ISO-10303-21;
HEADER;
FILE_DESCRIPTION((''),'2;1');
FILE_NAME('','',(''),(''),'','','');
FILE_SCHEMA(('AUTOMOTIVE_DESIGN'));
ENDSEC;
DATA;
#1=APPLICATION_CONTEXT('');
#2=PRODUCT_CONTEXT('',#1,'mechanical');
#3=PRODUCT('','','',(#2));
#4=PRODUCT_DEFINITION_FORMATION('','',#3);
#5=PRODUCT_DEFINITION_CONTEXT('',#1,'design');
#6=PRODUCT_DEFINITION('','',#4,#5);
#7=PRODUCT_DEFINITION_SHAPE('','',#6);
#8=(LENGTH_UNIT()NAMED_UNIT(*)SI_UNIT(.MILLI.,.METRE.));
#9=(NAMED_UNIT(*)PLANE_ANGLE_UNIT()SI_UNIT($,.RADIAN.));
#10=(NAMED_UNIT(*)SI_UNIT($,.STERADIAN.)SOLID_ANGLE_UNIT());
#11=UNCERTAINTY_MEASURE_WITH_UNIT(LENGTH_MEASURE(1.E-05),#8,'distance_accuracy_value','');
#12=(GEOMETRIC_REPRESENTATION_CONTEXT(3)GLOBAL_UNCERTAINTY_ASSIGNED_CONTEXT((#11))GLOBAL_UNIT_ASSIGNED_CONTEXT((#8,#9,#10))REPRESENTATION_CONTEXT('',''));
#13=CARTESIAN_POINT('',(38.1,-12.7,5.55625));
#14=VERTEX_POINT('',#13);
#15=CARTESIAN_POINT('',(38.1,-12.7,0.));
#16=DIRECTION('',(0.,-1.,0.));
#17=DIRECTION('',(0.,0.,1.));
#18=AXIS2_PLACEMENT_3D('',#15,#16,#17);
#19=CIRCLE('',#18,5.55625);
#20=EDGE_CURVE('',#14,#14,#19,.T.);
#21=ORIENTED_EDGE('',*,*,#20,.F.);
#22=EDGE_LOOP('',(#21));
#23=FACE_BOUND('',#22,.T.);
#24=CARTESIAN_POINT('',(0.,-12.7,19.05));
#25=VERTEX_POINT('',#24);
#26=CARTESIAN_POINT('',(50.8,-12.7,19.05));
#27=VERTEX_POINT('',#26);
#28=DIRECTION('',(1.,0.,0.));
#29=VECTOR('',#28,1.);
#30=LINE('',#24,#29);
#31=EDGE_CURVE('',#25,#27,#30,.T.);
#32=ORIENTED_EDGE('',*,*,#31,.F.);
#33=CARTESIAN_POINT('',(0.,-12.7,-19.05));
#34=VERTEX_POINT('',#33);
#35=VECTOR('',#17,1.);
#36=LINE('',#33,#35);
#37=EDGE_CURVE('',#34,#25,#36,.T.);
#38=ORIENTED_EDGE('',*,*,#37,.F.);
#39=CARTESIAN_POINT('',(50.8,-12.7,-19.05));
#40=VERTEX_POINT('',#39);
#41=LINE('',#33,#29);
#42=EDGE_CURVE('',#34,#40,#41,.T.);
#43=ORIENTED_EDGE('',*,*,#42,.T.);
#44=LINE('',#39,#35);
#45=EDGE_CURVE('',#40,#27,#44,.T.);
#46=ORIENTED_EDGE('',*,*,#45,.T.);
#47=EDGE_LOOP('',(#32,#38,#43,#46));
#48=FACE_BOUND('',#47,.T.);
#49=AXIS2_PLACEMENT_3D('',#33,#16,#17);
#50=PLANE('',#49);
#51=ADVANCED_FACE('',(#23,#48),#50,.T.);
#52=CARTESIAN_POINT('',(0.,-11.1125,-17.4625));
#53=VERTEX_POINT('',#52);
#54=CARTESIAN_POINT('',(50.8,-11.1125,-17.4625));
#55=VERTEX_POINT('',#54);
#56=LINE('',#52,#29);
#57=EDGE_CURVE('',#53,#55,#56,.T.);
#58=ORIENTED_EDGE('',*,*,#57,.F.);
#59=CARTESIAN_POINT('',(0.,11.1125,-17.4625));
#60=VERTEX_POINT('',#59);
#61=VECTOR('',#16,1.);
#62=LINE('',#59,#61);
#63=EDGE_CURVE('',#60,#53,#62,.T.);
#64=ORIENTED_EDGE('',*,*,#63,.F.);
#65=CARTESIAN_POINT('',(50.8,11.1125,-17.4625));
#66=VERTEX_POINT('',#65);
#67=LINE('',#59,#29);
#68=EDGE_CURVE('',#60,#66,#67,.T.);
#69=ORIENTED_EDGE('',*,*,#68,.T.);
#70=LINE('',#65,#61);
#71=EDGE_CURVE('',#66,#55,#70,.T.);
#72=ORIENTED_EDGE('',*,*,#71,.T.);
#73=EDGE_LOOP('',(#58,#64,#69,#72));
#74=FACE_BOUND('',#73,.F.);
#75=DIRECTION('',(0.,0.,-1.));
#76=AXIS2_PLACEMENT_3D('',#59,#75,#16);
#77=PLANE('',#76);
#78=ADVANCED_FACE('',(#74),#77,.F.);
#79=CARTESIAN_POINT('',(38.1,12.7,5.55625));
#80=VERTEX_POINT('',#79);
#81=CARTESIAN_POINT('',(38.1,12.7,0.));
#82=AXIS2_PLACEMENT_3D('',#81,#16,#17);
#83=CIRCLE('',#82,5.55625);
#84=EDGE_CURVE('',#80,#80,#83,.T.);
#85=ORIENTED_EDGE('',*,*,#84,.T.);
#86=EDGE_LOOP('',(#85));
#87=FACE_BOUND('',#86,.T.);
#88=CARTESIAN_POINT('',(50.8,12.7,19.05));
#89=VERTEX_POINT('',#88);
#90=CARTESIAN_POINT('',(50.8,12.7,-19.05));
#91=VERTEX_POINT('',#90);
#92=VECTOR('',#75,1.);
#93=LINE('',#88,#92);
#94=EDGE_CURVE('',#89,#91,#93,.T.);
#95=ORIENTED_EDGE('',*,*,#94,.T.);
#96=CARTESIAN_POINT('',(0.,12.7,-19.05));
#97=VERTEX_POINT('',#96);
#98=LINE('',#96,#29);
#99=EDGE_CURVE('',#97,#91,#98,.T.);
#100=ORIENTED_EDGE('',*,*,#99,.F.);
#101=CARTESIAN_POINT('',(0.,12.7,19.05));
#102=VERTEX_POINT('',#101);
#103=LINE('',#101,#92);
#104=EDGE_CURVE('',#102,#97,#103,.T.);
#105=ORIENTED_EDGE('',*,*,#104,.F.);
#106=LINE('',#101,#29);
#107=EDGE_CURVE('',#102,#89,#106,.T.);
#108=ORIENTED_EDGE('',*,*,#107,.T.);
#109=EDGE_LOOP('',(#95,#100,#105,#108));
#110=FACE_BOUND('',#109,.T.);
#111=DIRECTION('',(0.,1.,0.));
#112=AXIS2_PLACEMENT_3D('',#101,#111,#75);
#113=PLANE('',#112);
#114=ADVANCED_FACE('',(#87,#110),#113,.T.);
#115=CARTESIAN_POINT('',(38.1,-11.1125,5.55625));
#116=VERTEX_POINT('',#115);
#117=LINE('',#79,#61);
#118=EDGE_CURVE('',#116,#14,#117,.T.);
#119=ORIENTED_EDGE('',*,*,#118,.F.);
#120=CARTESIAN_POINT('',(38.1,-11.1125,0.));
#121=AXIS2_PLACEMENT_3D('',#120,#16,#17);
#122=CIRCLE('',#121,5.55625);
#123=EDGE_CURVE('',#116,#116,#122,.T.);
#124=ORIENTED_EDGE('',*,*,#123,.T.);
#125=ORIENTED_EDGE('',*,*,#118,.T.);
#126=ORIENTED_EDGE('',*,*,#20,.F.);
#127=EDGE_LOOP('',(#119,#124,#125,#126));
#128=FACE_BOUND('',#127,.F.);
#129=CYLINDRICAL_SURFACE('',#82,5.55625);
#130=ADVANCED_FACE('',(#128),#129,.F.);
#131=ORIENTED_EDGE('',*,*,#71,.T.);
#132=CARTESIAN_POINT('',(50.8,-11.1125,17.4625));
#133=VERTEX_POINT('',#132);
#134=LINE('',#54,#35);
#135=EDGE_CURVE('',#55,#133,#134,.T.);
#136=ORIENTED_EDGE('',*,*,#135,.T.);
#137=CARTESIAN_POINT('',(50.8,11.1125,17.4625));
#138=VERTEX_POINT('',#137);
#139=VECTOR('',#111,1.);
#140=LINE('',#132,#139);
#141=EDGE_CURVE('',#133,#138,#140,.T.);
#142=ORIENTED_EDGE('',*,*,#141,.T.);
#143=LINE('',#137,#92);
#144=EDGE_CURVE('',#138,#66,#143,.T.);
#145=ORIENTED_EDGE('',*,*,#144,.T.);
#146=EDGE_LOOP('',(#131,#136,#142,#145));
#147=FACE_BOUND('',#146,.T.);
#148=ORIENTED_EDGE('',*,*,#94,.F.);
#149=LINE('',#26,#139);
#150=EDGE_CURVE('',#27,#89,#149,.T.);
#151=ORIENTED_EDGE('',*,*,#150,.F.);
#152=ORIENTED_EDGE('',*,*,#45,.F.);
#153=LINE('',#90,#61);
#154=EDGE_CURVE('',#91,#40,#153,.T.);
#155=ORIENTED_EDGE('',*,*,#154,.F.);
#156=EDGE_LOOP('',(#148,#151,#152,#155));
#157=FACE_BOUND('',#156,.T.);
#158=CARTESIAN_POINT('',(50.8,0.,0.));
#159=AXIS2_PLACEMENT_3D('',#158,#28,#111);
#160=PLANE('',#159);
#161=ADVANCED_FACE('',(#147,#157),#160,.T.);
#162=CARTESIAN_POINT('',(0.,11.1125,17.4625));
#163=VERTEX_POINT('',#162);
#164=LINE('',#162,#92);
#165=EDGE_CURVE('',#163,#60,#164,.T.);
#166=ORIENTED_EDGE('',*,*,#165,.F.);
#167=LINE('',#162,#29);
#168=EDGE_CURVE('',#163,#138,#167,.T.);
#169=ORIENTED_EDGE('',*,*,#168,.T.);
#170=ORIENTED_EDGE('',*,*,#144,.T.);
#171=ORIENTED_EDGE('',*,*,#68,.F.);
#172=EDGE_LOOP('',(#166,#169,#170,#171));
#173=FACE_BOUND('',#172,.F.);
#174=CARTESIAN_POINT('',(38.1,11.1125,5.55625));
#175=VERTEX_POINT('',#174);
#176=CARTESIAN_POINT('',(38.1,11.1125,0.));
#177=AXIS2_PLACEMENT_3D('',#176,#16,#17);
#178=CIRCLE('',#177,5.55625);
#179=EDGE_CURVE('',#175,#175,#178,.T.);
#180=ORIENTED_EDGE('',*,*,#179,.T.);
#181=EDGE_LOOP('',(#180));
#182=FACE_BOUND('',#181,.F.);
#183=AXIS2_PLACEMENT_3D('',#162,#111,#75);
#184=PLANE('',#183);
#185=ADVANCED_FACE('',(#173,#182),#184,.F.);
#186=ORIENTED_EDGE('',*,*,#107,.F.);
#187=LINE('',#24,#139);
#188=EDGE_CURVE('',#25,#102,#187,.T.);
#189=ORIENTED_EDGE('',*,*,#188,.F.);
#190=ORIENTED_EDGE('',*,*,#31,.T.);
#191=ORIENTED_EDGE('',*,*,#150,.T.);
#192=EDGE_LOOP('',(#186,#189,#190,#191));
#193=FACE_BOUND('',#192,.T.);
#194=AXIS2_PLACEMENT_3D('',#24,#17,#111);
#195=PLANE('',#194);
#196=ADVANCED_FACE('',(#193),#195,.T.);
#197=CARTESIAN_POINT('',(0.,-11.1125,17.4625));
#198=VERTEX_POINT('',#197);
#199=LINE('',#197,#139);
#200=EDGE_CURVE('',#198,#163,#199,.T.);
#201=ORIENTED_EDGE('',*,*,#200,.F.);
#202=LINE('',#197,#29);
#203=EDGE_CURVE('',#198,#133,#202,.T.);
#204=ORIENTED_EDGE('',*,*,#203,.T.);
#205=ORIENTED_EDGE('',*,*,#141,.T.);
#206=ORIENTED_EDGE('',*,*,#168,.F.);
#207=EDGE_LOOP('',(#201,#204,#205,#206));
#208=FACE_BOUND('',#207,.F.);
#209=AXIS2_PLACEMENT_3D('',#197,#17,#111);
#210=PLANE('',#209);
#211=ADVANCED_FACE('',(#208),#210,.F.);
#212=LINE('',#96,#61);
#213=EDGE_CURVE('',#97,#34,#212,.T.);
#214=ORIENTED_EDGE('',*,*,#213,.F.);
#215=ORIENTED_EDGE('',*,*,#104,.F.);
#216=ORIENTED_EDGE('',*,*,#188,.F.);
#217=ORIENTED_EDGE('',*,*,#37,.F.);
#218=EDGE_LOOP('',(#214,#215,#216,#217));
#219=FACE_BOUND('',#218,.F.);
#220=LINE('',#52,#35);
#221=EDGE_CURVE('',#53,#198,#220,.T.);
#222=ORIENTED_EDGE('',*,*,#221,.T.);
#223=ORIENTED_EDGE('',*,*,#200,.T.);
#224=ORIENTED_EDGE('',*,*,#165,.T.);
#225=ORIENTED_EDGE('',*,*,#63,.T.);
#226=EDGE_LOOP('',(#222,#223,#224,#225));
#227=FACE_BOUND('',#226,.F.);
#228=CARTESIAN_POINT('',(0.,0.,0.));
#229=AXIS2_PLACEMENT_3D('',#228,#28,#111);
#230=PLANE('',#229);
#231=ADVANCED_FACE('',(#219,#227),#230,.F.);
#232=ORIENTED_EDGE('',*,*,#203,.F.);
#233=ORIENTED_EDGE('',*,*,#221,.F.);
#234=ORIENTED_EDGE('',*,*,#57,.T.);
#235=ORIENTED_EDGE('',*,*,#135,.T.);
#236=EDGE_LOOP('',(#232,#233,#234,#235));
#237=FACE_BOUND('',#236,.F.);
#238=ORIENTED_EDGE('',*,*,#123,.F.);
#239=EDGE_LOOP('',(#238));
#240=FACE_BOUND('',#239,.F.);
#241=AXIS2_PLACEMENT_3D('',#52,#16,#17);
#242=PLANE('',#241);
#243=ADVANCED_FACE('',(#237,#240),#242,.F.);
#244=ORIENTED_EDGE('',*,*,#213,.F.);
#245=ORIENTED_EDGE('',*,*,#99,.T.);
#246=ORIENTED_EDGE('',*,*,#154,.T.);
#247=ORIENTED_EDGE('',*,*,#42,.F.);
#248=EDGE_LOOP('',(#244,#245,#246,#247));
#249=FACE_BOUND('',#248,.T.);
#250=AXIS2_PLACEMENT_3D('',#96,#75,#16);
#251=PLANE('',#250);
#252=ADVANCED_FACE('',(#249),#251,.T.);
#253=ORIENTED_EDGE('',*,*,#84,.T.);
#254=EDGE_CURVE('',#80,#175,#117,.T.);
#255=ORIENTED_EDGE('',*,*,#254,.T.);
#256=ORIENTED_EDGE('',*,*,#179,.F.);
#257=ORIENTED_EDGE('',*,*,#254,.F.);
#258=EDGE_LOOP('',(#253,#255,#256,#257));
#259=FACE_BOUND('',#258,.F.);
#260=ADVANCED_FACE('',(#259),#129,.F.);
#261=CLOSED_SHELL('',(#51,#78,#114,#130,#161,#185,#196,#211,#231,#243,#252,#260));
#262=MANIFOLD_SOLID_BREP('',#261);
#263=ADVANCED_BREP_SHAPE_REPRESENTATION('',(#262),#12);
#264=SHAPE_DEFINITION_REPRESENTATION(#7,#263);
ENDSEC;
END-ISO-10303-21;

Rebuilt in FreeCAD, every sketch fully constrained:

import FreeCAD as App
import Part
import Sketcher
from FreeCAD import Vector
Q = App.Units.Quantity

doc = App.newDocument("Part")
body = doc.addObject("PartDesign::Body", "Body")

# Sketch on YZ plane
sketch1 = body.newObject("Sketcher::SketchObject", "Sketch")
sketch1.AttachmentSupport = (doc.getObject("YZ_Plane"), [""])
sketch1.MapMode = "FlatFace"
sketch1.addGeometry([
    Part.LineSegment(Vector(13, 19, 0), Vector(-13, 19, 0)),  # 0
    Part.LineSegment(Vector(-13, 19, 0), Vector(-13, -19, 0)),  # 1
    Part.LineSegment(Vector(-13, -19, 0), Vector(13, -19, 0)),  # 2
    Part.LineSegment(Vector(13, -19, 0), Vector(13, 19, 0)),  # 3
    Part.LineSegment(Vector(-11, -17, 0), Vector(-11, 17, 0)),  # 4
    Part.LineSegment(Vector(-11, 17, 0), Vector(11, 17, 0)),  # 5
    Part.LineSegment(Vector(11, 17, 0), Vector(11, -17, 0)),  # 6
    Part.LineSegment(Vector(11, -17, 0), Vector(-11, -17, 0)),  # 7
], False)
sketch1.addConstraint([
    Sketcher.Constraint("Coincident", 0, 2, 1, 1),
    Sketcher.Constraint("Coincident", 1, 2, 2, 1),
    Sketcher.Constraint("Coincident", 2, 2, 3, 1),
    Sketcher.Constraint("Coincident", 3, 2, 0, 1),
    Sketcher.Constraint("Coincident", 4, 2, 5, 1),
    Sketcher.Constraint("Coincident", 5, 2, 6, 1),
    Sketcher.Constraint("Coincident", 6, 2, 7, 1),
    Sketcher.Constraint("Coincident", 7, 2, 4, 1),
    Sketcher.Constraint("Horizontal", 0),
    Sketcher.Constraint("Vertical", 1),
    Sketcher.Constraint("Horizontal", 2),
    Sketcher.Constraint("Vertical", 3),
    Sketcher.Constraint("Vertical", 4),
    Sketcher.Constraint("Horizontal", 5),
    Sketcher.Constraint("Vertical", 6),
    Sketcher.Constraint("Horizontal", 7),
    Sketcher.Constraint("Symmetric", 0, 2, 2, 2, -1, 1),
    Sketcher.Constraint("Symmetric", 4, 2, 6, 2, -1, 1),
    Sketcher.Constraint("DistanceX", 0, 2, 0, 1, Q("1 in")),
    Sketcher.Constraint("DistanceY", 1, 2, 1, 1, Q("1.5 in")),
    Sketcher.Constraint("DistanceX", 0, 2, 4, 2, Q("0.0625 in")),
    Sketcher.Constraint("DistanceY", 4, 2, 0, 2, Q("0.0625 in")),
])
pad1 = body.newObject("PartDesign::Pad", "Pad")
pad1.Profile = sketch1
pad1.Length = Q("2 in")

# Sketch on XZ plane
sketch2 = body.newObject("Sketcher::SketchObject", "Sketch001")
sketch2.AttachmentSupport = (doc.getObject("XZ_Plane"), [""])
sketch2.MapMode = "FlatFace"
sketch2.AttachmentOffset = App.Placement(Vector(0, 0, -0.5 * 25.4), App.Rotation())
sketch2.addGeometry(Part.Circle(Vector(38, 0, 0), Vector(0, 0, 1), 6), False)
sketch2.addConstraint([
    Sketcher.Constraint("PointOnObject", 0, 3, -1),
    Sketcher.Constraint("Diameter", 0, Q("0.4375 in")),
    Sketcher.Constraint("DistanceX", -1, 1, 0, 3, Q("1.5 in")),
])
doc.recompute()
hole = body.newObject("PartDesign::Hole", "Hole")
hole.Profile = sketch2
hole.ThreadType = "None"
hole.Diameter = Q("0.4375 in")
hole.DepthType = "ThroughAll"
hole.Reversed = True

doc.recompute()
